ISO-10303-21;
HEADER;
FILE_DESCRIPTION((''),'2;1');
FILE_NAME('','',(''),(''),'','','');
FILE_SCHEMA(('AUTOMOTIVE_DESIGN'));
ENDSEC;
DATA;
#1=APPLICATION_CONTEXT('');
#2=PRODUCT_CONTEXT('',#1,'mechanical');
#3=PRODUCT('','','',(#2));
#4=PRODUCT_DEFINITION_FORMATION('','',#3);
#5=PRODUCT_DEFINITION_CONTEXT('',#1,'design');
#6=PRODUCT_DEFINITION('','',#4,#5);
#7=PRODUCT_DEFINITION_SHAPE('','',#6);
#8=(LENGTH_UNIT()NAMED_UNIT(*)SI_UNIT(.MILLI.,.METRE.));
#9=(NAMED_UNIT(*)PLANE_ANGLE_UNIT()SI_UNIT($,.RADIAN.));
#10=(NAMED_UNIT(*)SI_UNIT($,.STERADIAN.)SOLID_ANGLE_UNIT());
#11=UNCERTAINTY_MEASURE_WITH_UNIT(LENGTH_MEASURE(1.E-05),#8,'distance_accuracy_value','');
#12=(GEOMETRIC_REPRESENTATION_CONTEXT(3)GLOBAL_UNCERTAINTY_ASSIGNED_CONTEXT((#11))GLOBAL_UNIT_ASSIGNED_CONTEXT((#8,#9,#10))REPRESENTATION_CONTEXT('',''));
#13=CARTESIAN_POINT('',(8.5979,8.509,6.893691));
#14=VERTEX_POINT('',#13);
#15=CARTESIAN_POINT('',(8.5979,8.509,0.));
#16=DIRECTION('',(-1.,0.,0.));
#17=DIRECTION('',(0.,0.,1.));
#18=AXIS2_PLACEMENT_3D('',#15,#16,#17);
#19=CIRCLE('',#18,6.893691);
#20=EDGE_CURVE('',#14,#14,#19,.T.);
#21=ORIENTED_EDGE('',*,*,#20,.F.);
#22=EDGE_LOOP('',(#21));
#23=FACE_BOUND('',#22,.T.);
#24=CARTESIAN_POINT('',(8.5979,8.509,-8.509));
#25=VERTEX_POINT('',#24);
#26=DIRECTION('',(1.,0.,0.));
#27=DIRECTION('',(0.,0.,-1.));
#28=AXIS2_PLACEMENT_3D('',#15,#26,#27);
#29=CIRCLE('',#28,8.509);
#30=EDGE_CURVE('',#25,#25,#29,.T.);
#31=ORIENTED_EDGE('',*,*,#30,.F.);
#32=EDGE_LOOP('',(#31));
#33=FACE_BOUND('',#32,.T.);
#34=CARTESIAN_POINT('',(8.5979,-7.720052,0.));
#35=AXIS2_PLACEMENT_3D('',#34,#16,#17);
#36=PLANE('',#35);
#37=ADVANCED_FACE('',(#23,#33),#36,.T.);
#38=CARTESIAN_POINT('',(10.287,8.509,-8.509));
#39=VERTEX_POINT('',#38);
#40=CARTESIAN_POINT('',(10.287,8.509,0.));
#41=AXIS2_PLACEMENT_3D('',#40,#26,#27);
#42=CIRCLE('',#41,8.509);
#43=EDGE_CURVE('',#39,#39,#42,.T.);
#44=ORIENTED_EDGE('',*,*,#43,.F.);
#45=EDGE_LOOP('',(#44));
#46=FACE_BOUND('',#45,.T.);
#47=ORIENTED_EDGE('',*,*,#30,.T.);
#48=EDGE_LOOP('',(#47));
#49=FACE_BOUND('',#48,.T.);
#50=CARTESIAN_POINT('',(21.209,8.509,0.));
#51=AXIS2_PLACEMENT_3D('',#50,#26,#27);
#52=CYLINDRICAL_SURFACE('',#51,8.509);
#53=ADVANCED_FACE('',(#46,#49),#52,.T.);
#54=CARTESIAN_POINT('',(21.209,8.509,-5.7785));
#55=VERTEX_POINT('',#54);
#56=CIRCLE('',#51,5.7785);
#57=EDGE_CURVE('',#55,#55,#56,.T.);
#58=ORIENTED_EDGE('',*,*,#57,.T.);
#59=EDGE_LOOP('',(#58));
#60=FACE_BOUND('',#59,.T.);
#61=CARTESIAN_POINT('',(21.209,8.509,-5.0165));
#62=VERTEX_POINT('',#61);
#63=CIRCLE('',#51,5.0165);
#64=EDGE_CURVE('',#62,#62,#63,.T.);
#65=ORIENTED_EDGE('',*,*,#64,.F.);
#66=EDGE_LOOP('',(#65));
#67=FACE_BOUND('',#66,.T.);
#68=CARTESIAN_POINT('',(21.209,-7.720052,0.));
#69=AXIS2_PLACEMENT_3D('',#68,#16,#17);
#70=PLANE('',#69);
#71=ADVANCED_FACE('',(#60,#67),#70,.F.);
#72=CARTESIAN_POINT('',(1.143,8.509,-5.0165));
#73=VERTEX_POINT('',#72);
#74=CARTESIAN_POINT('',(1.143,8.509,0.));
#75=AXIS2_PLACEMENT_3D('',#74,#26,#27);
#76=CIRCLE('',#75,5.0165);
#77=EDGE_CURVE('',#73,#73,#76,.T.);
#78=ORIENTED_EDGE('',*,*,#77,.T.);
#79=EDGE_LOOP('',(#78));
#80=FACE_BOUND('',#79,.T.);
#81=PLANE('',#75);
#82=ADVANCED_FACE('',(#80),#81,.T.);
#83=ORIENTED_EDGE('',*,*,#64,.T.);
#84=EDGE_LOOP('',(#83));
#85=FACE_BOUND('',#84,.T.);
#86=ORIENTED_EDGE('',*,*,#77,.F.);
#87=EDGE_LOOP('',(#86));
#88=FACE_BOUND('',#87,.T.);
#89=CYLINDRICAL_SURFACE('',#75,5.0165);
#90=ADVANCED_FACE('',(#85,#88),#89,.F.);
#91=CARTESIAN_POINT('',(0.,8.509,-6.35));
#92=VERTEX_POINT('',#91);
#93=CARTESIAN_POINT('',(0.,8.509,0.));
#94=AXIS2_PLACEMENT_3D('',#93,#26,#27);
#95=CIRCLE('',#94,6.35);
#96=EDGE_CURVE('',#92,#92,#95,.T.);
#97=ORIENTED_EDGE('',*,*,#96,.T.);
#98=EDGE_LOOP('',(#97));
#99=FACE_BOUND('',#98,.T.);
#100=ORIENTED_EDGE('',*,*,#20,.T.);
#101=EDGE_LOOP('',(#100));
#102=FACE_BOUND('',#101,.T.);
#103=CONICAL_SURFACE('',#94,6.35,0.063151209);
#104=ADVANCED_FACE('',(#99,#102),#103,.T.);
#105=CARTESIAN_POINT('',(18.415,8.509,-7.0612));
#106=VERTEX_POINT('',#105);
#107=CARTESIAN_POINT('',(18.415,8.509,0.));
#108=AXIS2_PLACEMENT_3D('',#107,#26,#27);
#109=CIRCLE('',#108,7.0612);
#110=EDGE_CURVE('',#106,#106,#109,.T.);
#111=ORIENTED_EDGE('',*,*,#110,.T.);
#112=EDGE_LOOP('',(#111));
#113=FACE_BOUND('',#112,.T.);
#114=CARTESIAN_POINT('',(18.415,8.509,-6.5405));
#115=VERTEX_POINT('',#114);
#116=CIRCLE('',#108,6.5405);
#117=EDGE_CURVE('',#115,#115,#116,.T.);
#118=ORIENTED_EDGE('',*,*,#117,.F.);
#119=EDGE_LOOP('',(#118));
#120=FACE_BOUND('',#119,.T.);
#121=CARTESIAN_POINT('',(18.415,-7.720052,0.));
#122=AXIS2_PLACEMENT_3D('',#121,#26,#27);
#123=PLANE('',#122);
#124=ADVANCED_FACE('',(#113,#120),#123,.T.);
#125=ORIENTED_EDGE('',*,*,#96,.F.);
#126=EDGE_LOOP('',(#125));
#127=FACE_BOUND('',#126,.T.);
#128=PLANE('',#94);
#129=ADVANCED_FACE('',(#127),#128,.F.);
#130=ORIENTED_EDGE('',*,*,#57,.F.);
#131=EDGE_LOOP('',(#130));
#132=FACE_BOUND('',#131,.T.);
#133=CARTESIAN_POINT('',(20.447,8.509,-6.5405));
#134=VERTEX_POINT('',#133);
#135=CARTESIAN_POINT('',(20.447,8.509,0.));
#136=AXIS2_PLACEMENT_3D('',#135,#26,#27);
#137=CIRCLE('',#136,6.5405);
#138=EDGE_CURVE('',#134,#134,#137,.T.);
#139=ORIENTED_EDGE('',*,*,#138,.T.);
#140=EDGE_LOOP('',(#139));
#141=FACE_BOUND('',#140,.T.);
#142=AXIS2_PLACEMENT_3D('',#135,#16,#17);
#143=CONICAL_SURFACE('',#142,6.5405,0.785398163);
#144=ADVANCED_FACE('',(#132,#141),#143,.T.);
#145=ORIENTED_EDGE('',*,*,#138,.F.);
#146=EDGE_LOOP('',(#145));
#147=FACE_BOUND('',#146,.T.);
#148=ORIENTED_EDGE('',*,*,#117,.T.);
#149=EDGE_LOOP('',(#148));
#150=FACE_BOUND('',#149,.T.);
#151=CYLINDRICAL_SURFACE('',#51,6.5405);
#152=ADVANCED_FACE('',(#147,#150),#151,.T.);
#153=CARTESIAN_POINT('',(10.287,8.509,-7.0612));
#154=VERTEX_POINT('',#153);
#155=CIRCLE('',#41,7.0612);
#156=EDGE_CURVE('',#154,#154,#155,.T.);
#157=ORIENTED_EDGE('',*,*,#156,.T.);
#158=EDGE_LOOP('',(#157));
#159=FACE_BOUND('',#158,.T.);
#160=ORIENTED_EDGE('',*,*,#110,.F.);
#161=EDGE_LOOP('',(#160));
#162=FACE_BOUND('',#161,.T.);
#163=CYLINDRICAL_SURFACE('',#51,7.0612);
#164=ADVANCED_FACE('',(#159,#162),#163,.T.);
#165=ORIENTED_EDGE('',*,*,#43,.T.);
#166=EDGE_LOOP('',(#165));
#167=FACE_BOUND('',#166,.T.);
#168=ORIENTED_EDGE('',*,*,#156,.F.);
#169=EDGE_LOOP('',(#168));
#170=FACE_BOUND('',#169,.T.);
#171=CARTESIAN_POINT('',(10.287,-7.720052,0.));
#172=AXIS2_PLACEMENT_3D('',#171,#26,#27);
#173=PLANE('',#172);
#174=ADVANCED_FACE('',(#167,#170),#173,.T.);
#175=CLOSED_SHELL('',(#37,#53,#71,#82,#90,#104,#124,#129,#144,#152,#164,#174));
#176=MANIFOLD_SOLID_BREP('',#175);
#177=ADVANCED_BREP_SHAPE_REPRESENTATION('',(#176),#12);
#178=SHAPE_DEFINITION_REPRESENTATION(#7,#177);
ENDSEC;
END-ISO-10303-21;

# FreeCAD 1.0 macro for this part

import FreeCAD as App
import Part
import Sketcher
from FreeCAD import Vector
Q = App.Units.Quantity

doc = App.newDocument("Part")
body = doc.addObject("PartDesign::Body", "Body")

# Sketch on XY plane
sketch1 = body.newObject("Sketcher::SketchObject", "Sketch")
sketch1.AttachmentSupport = (doc.getObject("XY_Plane"), [""])
sketch1.MapMode = "FlatFace"
sketch1.addGeometry([
    Part.LineSegment(Vector(18.415, 1.9685, 0), Vector(20.447, 1.9685, 0)),  # 0
    Part.LineSegment(Vector(20.447, 1.9685, 0), Vector(21.209, 2.7305, 0)),  # 1
    Part.LineSegment(Vector(21.209, 2.7305, 0), Vector(21.209, 8.509, 0)),  # 2
    Part.LineSegment(Vector(21.209, 8.509, 0), Vector(8.5979, 8.509, 0)),  # 3
    Part.LineSegment(Vector(8.5979, 8.509, 0), Vector(8.5979, 0, 0)),  # 4
    Part.LineSegment(Vector(8.5979, 0, 0), Vector(10.287, 0, 0)),  # 5
    Part.LineSegment(Vector(10.287, 0, 0), Vector(10.287, 1.4478, 0)),  # 6
    Part.LineSegment(Vector(10.287, 1.4478, 0), Vector(18.415, 1.4478, 0)),  # 7
    Part.LineSegment(Vector(18.415, 1.4478, 0), Vector(18.415, 1.9685, 0)),  # 8
], False)
sketch1.addGeometry(Part.LineSegment(Vector(21.209, 8.509, 0), Vector(8.5979, 8.509, 0)), True)  # axis
sketch1.addConstraint([
    Sketcher.Constraint("Coincident", 0, 2, 1, 1),
    Sketcher.Constraint("Coincident", 1, 2, 2, 1),
    Sketcher.Constraint("Coincident", 2, 2, 3, 1),
    Sketcher.Constraint("Coincident", 3, 2, 4, 1),
    Sketcher.Constraint("Coincident", 4, 2, 5, 1),
    Sketcher.Constraint("Coincident", 5, 2, 6, 1),
    Sketcher.Constraint("Coincident", 6, 2, 7, 1),
    Sketcher.Constraint("Coincident", 7, 2, 8, 1),
    Sketcher.Constraint("Coincident", 8, 2, 0, 1),
    Sketcher.Constraint("Horizontal", 0),
    Sketcher.Constraint("Vertical", 2),
    Sketcher.Constraint("Horizontal", 3),
    Sketcher.Constraint("Vertical", 4),
    Sketcher.Constraint("Horizontal", 5),
    Sketcher.Constraint("Vertical", 6),
    Sketcher.Constraint("Horizontal", 7),
    Sketcher.Constraint("Vertical", 8),
    Sketcher.Constraint("Horizontal", 9),
    Sketcher.Constraint("Coincident", 9, 1, 2, 2),
    Sketcher.Constraint("PointOnObject", 4, 2, -1),
    Sketcher.Constraint("Vertical", 4, 2, 9, 2),
    Sketcher.Constraint("Angle", 1, Q("45 deg")),
    Sketcher.Constraint("DistanceX", 0, 1, 0, 2, Q("0.08 in")),
    Sketcher.Constraint("DistanceX", 7, 1, 7, 2, Q("0.32 in")),
    Sketcher.Constraint("DistanceY", 4, 2, 4, 1, Q("0.335 in")),
    Sketcher.Constraint("DistanceY", 6, 1, 6, 2, Q("0.057 in")),
    Sketcher.Constraint("DistanceX", 0, 2, 1, 2, Q("0.03 in")),
    Sketcher.Constraint("DistanceX", 3, 2, 3, 1, Q("0.4965 in")),
    Sketcher.Constraint("DistanceY", 2, 1, 2, 2, Q("0.2275 in")),
    Sketcher.Constraint("DistanceX", -1, 1, 0, 2, Q("0.805 in")),
])
revolution = body.newObject("PartDesign::Revolution", "Revolution")
revolution.Profile = sketch1
revolution.ReferenceAxis = (sketch1, ["Axis0"])
revolution.Angle = 360

# Sketch on YZ plane
sketch2 = body.newObject("Sketcher::SketchObject", "Sketch001")
sketch2.AttachmentSupport = (doc.getObject("YZ_Plane"), [""])
sketch2.MapMode = "FlatFace"
sketch2.addGeometry(Part.Circle(Vector(8.509, 0, 0), Vector(0, 0, 1), 6.35), False)
sketch2.addConstraint([
    Sketcher.Constraint("PointOnObject", 0, 3, -1),
    Sketcher.Constraint("Diameter", 0, Q("0.5 in")),
    Sketcher.Constraint("DistanceX", -1, 1, 0, 3, Q("0.335 in")),
])

# Sketch on YZ plane
sketch3 = body.newObject("Sketcher::SketchObject", "Sketch002")
sketch3.AttachmentSupport = (doc.getObject("YZ_Plane"), [""])
sketch3.MapMode = "FlatFace"
sketch3.AttachmentOffset = App.Placement(Vector(0, 0, 0.34 * 25.4), App.Rotation())
sketch3.addGeometry(Part.Circle(Vector(8.509, 0, 0), Vector(0, 0, 1), 6.8961), False)
sketch3.addConstraint([
    Sketcher.Constraint("PointOnObject", 0, 3, -1),
    Sketcher.Constraint("Diameter", 0, Q("0.543 in")),
    Sketcher.Constraint("DistanceX", -1, 1, 0, 3, Q("0.335 in")),
])

additiveloft = body.newObject("PartDesign::AdditiveLoft", "AdditiveLoft")
additiveloft.Profile = sketch2
additiveloft.Sections = [sketch3]

# Sketch on YZ plane
sketch4 = body.newObject("Sketcher::SketchObject", "Sketch003")
sketch4.AttachmentSupport = (doc.getObject("YZ_Plane"), [""])
sketch4.MapMode = "FlatFace"
sketch4.AttachmentOffset = App.Placement(Vector(0, 0, 0.835 * 25.4), App.Rotation())
sketch4.addGeometry(Part.Circle(Vector(8.509, 0, 0), Vector(0, 0, 1), 5.0165), False)
sketch4.addConstraint([
    Sketcher.Constraint("PointOnObject", 0, 3, -1),
    Sketcher.Constraint("Diameter", 0, Q("0.395 in")),
    Sketcher.Constraint("DistanceX", -1, 1, 0, 3, Q("0.335 in")),
])
pocket1 = body.newObject("PartDesign::Pocket", "Pocket")
pocket1.Profile = sketch4
pocket1.Length = Q("0.79 in")

doc.recompute()
